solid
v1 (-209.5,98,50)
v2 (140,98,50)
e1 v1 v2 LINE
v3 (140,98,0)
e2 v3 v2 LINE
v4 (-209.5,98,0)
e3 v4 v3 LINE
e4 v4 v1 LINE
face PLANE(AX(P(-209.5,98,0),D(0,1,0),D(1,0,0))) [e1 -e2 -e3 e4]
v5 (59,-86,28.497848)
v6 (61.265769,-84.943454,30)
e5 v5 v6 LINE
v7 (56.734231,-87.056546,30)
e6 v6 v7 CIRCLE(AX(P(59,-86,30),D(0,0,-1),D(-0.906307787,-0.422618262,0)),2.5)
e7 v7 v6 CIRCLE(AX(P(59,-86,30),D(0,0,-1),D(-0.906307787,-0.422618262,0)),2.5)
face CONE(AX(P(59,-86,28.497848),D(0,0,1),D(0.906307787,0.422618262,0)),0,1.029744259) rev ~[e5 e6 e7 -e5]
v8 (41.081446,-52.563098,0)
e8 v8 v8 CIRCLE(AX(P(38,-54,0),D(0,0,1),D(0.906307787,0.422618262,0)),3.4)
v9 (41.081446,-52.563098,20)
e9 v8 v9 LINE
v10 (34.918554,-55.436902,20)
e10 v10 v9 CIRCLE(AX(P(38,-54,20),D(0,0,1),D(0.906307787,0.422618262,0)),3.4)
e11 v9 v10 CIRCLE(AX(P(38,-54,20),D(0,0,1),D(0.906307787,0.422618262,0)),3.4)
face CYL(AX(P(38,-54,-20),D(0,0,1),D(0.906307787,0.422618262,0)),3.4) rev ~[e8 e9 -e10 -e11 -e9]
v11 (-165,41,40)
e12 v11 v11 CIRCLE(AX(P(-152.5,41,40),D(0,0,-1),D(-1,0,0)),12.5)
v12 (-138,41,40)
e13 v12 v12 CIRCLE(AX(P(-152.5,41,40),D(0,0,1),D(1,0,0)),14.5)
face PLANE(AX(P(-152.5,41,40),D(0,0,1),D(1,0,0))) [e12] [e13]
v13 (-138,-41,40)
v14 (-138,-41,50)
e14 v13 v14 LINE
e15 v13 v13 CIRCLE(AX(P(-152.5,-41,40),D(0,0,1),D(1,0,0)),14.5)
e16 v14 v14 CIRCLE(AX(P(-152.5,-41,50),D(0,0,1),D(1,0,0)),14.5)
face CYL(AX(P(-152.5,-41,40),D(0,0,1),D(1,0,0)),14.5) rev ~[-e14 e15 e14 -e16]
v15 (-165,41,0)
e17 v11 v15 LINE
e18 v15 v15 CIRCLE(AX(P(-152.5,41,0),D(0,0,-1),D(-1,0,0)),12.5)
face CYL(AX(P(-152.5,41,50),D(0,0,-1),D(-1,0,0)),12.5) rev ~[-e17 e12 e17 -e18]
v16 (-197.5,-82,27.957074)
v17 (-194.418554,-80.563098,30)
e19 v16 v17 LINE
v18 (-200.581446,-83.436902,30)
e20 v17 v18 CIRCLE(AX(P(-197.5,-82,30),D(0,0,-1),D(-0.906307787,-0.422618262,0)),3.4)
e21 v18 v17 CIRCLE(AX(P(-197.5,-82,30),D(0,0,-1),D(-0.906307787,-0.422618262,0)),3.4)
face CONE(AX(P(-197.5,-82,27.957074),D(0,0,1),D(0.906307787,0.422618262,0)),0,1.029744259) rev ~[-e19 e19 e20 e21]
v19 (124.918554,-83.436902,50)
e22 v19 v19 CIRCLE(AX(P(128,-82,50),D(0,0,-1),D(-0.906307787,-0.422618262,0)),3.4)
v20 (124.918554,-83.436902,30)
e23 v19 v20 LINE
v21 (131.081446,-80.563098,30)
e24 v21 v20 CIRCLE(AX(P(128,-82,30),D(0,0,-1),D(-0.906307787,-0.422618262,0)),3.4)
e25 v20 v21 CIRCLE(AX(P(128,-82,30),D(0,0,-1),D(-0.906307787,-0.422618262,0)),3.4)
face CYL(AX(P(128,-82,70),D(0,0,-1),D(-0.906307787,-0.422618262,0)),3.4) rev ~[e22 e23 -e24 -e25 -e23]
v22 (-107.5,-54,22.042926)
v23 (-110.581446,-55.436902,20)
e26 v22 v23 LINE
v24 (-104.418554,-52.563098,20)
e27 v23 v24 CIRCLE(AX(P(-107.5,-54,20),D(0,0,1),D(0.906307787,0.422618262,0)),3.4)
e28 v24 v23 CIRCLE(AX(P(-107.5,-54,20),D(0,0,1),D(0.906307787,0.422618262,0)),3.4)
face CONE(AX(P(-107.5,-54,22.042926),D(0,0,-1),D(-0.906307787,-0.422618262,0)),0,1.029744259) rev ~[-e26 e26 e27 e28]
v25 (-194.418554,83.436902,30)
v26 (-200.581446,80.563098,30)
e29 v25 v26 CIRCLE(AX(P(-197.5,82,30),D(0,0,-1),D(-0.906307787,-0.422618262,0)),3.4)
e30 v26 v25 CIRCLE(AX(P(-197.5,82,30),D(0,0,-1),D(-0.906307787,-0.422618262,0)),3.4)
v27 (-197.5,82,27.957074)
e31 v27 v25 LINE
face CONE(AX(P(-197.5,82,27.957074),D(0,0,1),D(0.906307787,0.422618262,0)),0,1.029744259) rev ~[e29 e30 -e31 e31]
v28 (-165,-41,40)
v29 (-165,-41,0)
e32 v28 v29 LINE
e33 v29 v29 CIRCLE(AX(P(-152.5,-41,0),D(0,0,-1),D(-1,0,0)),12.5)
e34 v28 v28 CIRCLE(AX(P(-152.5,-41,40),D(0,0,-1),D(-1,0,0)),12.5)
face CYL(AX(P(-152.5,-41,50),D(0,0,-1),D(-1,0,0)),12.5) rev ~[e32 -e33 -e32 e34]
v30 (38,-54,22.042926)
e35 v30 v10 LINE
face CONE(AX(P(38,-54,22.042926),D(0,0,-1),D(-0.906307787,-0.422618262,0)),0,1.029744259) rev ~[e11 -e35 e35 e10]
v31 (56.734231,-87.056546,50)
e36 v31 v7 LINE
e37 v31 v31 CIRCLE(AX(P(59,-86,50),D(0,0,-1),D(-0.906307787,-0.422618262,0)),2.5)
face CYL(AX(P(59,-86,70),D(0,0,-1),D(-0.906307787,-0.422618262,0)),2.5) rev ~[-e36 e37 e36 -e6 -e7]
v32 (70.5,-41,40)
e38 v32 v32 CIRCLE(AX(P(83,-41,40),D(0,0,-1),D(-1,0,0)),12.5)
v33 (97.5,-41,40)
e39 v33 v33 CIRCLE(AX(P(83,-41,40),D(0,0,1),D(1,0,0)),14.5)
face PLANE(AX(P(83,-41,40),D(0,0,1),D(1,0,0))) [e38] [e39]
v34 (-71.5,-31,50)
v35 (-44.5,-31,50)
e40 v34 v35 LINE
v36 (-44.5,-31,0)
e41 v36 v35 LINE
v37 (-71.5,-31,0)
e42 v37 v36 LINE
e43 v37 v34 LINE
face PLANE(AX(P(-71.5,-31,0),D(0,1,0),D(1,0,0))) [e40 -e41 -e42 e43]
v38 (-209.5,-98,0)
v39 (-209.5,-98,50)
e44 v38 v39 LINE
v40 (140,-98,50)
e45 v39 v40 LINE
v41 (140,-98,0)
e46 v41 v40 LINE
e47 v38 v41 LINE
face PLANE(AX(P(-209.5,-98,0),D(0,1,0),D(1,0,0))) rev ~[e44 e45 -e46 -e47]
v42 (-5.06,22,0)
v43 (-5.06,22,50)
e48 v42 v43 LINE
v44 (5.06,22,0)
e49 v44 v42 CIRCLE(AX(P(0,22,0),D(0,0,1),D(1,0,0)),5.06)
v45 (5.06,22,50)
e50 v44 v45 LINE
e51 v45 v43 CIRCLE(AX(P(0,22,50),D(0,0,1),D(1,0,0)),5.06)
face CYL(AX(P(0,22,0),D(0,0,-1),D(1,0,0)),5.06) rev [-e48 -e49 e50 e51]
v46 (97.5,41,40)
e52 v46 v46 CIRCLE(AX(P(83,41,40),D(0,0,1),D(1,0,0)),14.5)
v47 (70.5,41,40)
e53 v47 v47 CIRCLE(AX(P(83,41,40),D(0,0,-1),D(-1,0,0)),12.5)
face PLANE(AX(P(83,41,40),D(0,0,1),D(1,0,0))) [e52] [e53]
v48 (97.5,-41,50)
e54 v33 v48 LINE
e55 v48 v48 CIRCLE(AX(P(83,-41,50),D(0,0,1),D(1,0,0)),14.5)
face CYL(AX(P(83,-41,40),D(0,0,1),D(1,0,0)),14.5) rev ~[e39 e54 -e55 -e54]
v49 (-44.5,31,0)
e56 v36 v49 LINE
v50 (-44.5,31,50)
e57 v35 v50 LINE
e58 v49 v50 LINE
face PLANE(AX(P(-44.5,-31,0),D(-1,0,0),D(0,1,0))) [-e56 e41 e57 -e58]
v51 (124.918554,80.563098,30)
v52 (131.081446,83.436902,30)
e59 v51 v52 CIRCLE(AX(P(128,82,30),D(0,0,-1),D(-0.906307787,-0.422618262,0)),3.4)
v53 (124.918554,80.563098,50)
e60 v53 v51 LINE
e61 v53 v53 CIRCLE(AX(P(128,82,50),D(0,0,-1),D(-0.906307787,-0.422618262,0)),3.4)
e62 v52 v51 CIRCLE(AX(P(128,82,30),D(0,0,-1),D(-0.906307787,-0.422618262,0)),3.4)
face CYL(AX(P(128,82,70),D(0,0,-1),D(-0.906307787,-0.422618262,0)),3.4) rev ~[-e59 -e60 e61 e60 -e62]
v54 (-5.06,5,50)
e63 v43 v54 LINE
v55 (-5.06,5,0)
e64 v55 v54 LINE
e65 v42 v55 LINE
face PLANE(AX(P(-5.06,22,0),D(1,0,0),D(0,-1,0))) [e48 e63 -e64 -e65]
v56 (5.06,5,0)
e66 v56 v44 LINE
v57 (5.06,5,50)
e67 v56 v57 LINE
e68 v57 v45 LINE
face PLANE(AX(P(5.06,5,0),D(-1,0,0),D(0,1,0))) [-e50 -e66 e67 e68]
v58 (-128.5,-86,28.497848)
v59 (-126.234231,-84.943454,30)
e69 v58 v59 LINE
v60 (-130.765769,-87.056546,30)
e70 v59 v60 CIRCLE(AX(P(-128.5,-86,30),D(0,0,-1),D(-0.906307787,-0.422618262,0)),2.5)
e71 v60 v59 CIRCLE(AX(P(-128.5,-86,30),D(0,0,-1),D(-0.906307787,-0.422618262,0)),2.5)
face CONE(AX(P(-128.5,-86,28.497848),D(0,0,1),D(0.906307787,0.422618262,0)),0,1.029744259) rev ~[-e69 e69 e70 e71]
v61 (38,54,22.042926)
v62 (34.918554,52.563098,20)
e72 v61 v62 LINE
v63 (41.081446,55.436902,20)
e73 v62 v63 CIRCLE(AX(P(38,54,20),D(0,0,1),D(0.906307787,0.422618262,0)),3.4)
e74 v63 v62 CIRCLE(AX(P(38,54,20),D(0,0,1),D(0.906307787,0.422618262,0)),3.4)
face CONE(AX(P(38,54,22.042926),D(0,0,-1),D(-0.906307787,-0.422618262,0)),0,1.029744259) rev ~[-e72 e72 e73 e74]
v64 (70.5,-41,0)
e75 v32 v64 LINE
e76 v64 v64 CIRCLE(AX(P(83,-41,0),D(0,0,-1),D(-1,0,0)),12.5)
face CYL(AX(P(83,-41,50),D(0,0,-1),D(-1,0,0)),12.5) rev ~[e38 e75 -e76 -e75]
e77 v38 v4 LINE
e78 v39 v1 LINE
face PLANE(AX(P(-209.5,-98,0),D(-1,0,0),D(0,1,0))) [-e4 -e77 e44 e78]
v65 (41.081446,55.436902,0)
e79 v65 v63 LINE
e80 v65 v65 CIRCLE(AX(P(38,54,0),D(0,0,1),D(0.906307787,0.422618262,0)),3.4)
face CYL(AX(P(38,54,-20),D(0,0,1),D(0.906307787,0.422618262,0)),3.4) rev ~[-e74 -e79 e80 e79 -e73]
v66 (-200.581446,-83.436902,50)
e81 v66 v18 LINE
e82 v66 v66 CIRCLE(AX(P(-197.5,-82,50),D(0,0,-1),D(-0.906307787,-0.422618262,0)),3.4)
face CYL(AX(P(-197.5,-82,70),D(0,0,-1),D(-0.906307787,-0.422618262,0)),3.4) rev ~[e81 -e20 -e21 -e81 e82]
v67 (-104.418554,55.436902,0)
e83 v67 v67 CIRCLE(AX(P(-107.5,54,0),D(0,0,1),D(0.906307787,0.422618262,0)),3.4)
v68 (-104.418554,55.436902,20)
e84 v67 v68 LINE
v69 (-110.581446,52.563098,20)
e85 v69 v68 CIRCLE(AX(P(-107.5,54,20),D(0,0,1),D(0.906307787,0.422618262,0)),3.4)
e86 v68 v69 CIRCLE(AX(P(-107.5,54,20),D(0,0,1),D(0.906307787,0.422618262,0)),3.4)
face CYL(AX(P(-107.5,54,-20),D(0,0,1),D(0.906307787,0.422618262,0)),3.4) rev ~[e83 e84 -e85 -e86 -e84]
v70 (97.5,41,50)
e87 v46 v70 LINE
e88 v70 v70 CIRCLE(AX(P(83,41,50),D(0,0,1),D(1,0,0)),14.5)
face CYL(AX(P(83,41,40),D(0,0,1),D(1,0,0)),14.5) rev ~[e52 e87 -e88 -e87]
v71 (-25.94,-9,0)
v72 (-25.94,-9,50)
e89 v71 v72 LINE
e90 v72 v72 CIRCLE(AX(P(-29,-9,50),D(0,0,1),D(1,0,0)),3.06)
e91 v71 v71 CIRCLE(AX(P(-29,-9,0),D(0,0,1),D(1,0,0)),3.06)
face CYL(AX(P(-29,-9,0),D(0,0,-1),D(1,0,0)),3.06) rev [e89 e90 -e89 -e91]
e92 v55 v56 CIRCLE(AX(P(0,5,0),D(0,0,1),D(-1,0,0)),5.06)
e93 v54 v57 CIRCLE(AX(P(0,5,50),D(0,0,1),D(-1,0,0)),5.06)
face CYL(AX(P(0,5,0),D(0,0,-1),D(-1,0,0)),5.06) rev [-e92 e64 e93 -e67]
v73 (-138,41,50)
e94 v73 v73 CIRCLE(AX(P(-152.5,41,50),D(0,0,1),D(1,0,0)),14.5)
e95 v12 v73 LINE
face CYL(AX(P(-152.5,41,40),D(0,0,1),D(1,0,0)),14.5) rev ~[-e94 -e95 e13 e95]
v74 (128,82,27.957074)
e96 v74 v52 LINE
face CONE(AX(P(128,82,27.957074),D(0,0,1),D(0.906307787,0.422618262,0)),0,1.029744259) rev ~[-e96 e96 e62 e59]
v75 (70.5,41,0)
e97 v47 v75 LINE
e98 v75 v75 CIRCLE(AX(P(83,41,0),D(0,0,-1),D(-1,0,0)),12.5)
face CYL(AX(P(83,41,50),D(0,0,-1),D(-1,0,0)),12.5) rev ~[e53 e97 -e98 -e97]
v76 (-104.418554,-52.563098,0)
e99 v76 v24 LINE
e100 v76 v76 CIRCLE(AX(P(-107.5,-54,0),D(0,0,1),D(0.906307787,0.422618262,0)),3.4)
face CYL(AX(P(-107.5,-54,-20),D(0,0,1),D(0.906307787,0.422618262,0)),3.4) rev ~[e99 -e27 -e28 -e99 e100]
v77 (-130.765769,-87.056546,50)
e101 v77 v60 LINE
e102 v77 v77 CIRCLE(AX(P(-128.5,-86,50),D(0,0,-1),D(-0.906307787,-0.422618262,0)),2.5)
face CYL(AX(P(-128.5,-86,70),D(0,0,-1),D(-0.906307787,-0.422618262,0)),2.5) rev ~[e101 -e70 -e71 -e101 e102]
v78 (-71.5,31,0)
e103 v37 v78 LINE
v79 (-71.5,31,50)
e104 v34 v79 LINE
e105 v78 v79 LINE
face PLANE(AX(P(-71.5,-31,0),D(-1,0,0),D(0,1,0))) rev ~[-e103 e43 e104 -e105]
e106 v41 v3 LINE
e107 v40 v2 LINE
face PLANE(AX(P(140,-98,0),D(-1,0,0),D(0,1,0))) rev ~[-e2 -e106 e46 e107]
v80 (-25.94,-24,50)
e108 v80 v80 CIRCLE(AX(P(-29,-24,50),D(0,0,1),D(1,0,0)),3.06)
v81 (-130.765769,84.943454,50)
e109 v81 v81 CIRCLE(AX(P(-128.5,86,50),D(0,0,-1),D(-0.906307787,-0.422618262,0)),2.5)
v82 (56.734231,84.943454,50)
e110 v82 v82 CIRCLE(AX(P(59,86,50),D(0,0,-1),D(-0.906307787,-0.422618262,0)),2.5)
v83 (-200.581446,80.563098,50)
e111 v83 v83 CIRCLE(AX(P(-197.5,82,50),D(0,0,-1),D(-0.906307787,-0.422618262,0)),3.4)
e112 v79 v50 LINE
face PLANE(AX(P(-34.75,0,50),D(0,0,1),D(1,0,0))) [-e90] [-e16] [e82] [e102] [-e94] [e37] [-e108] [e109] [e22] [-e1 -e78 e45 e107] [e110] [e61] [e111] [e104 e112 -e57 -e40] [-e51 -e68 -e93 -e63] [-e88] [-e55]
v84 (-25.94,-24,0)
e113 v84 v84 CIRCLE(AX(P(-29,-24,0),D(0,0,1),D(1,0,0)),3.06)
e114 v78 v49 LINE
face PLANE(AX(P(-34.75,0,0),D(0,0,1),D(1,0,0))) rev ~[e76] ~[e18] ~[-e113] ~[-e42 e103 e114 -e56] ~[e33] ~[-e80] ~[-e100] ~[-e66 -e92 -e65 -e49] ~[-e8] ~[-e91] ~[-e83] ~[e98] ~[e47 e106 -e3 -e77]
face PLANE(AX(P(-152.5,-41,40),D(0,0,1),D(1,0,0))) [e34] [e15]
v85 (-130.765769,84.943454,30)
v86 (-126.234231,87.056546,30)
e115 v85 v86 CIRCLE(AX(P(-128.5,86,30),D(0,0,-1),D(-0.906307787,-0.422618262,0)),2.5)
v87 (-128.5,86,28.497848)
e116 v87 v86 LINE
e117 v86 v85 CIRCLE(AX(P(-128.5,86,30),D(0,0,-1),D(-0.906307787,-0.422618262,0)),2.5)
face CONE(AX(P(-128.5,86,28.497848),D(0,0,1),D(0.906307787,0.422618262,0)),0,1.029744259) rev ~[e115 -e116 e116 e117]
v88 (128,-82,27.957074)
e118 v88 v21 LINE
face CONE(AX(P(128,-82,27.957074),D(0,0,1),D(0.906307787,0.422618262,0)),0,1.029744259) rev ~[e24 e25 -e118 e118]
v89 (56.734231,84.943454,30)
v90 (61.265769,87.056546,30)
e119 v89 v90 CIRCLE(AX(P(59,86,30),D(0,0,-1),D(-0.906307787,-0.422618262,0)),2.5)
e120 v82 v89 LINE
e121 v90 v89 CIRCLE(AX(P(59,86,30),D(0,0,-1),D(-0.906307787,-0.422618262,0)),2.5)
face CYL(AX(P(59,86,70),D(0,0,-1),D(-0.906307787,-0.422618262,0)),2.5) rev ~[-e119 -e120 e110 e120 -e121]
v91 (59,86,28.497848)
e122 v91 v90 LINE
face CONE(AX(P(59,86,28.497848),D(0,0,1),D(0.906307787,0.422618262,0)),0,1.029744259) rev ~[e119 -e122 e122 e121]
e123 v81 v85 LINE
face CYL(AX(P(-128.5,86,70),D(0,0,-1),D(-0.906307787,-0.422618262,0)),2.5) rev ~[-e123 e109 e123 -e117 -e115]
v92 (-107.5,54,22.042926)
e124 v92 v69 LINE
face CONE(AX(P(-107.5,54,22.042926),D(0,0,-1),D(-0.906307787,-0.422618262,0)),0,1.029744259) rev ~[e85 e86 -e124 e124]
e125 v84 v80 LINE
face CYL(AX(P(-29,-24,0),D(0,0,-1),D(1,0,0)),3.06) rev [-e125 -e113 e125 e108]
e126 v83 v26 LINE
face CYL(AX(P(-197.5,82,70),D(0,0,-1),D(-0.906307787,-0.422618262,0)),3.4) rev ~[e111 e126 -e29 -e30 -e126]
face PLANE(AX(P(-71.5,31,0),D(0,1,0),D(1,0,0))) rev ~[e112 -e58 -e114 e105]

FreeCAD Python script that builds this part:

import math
import FreeCAD as App
import Part
import Sketcher
from FreeCAD import Vector
Q = App.Units.Quantity


def add_polygon(sketch, points):
    """Adds a closed chain of lines whose ends are joined by coincident constraints."""
    first, n = sketch.GeometryCount, len(points)
    for a, b in zip(points, points[1:] + points[:1]):
        sketch.addGeometry(Part.LineSegment(App.Vector(*a, 0), App.Vector(*b, 0)), False)
    for i in range(n):
        sketch.addConstraint(Sketcher.Constraint("Coincident", first + i, 2, first + (i + 1) % n, 1))

doc = App.newDocument("Part")
body = doc.addObject("PartDesign::Body", "Body")

sketch1 = body.newObject("Sketcher::SketchObject", "Sketch")
sketch1.AttachmentSupport = (doc.getObject("XY_Plane"), [""])
sketch1.MapMode = "FlatFace"
add_polygon(sketch1, [(-209.5, 98), (-209.5, -98), (140, -98), (140, 98)])
sketch1.addGeometry(Part.Circle(Vector(-29, -24, 0), Vector(0, 0, 1), 3.1), False)
sketch1.addGeometry(Part.Circle(Vector(-29, -9, 0), Vector(0, 0, 1), 3.1), False)
add_polygon(sketch1, [(-44.5, -31), (-71.5, -31), (-71.5, 31), (-44.5, 31)])
sketch1.addGeometry(Part.LineSegment(Vector(-5.1, 5, 0), Vector(-5.1, 22, 0)), False)
sketch1.addGeometry(Part.ArcOfCircle(Part.Circle(Vector(0, 22, 0), Vector(0, 0, 1), 5.1), math.radians(0), math.radians(180)), False)
sketch1.addGeometry(Part.LineSegment(Vector(5.1, 22, 0), Vector(5.1, 5, 0)), False)
sketch1.addGeometry(Part.ArcOfCircle(Part.Circle(Vector(0, 5, 0), Vector(0, 0, 1), 5.1), math.radians(180), math.radians(360)), False)
sketch1.addConstraint([
    Sketcher.Constraint("Tangent", 10, 2, 11, 2),
    Sketcher.Constraint("Tangent", 11, 1, 12, 1),
    Sketcher.Constraint("Tangent", 12, 2, 13, 2),
    Sketcher.Constraint("Tangent", 13, 1, 10, 1),
    Sketcher.Constraint("Vertical", 0),
    Sketcher.Constraint("Horizontal", 1),
    Sketcher.Constraint("Vertical", 2),
    Sketcher.Constraint("Horizontal", 3),
    Sketcher.Constraint("Horizontal", 6),
    Sketcher.Constraint("Vertical", 7),
    Sketcher.Constraint("Horizontal", 8),
    Sketcher.Constraint("Vertical", 9),
    Sketcher.Constraint("Vertical", 10),
    Sketcher.Constraint("Vertical", 12),
    Sketcher.Constraint("Equal", 4, 5),
    Sketcher.Constraint("PointOnObject", 11, 3, -2),
    Sketcher.Constraint("Vertical", 4, 3, 5, 3),
    Sketcher.Constraint("Diameter", 4, Q("6.12 mm")),
    Sketcher.Constraint("DistanceX", 6, 2, 6, 1, Q("27 mm")),
    Sketcher.Constraint("DistanceY", 0, 2, 0, 1, Q("196 mm")),
    Sketcher.Constraint("DistanceY", 7, 1, 7, 2, Q("62 mm")),
    Sketcher.Constraint("DistanceY", 10, 1, 10, 2, Q("17 mm")),
    Sketcher.Constraint("Radius", 11, Q("5.06 mm")),
    Sketcher.Constraint("DistanceX", 1, 1, 1, 2, Q("349.5 mm")),
    Sketcher.Constraint("DistanceX", 4, 3, -1, 1, Q("29 mm")),
    Sketcher.Constraint("DistanceY", 4, 3, -1, 1, Q("24 mm")),
    Sketcher.Constraint("DistanceY", 5, 3, -1, 1, Q("9 mm")),
    Sketcher.Constraint("DistanceY", -1, 1, 11, 3, Q("22 mm")),
    Sketcher.Constraint("DistanceY", 0, 2, -1, 1, Q("98 mm")),
    Sketcher.Constraint("DistanceX", -1, 1, 1, 2, Q("140 mm")),
    Sketcher.Constraint("DistanceY", 6, 2, -1, 1, Q("31 mm")),
    Sketcher.Constraint("DistanceX", 0, 2, 6, 2, Q("138 mm")),
])
pad1 = body.newObject("PartDesign::Pad", "Pad")
pad1.Profile = sketch1
pad1.Length = 50

sketch2 = body.newObject("Sketcher::SketchObject", "Sketch001")
sketch2.AttachmentSupport = (doc.getObject("XY_Plane"), [""])
sketch2.MapMode = "FlatFace"
sketch2.addGeometry([
    Part.Circle(Vector(-107.5, 54, 0), Vector(0, 0, 1), 3.4),
    Part.Circle(Vector(-107.5, -54, 0), Vector(0, 0, 1), 3.4),
    Part.Circle(Vector(38, 54, 0), Vector(0, 0, 1), 3.4),
    Part.Circle(Vector(38, -54, 0), Vector(0, 0, 1), 3.4),
], False)
sketch2.addConstraint([
    Sketcher.Constraint("Equal", 0, 1),
    Sketcher.Constraint("Equal", 1, 2),
    Sketcher.Constraint("Equal", 2, 3),
    Sketcher.Constraint("Symmetric", 0, 3, 1, 3, -1),
    Sketcher.Constraint("Symmetric", 2, 3, 3, 3, -1),
    Sketcher.Constraint("Horizontal", 0, 3, 2, 3),
    Sketcher.Constraint("Diameter", 0, Q("6.8 mm")),
    Sketcher.Constraint("DistanceY", -1, 1, 0, 3, Q("54 mm")),
    Sketcher.Constraint("DistanceX", -1, 1, 2, 3, Q("38 mm")),
    Sketcher.Constraint("DistanceX", 0, 3, -1, 1, Q("107.5 mm")),
])
doc.recompute()
hole = body.newObject("PartDesign::Hole", "Hole")
hole.Profile = sketch2
hole.ThreadType = "None"
hole.Diameter = 6.8
hole.DepthType = "Dimension"
hole.Depth = 20
hole.DrillPoint = "Angled"
hole.DrillPointAngle = 118
hole.Reversed = True

sketch3 = body.newObject("Sketcher::SketchObject", "Sketch002")
sketch3.AttachmentSupport = (doc.getObject("XY_Plane"), [""])
sketch3.MapMode = "FlatFace"
sketch3.AttachmentOffset = App.Placement(Vector(0, 0, 50), App.Rotation())
sketch3.addGeometry([
    Part.Circle(Vector(59, 86, 0), Vector(0, 0, 1), 2.5),
    Part.Circle(Vector(59, -86, 0), Vector(0, 0, 1), 2.5),
], False)
sketch3.addConstraint([
    Sketcher.Constraint("Equal", 0, 1),
    Sketcher.Constraint("Symmetric", 0, 3, 1, 3, -1),
    Sketcher.Constraint("Diameter", 0, Q("5 mm")),
    Sketcher.Constraint("DistanceX", -1, 1, 0, 3, Q("59 mm")),
    Sketcher.Constraint("DistanceY", -1, 1, 0, 3, Q("86 mm")),
])
doc.recompute()
hole2 = body.newObject("PartDesign::Hole", "Hole001")
hole2.Profile = sketch3
hole2.ThreadType = "None"
hole2.Diameter = 5
hole2.DepthType = "Dimension"
hole2.Depth = 20
hole2.DrillPoint = "Angled"
hole2.DrillPointAngle = 118

sketch4 = body.newObject("Sketcher::SketchObject", "Sketch003")
sketch4.AttachmentSupport = (doc.getObject("XY_Plane"), [""])
sketch4.MapMode = "FlatFace"
sketch4.AttachmentOffset = App.Placement(Vector(0, 0, 50), App.Rotation())
sketch4.addGeometry([
    Part.Circle(Vector(-128.5, 86, 0), Vector(0, 0, 1), 2.5),
    Part.Circle(Vector(-128.5, -86, 0), Vector(0, 0, 1), 2.5),
], False)
sketch4.addConstraint([
    Sketcher.Constraint("Equal", 0, 1),
    Sketcher.Constraint("Symmetric", 0, 3, 1, 3, -1),
    Sketcher.Constraint("Diameter", 0, Q("5 mm")),
    Sketcher.Constraint("DistanceY", -1, 1, 0, 3, Q("86 mm")),
    Sketcher.Constraint("DistanceX", 0, 3, -1, 1, Q("128.5 mm")),
])
doc.recompute()
hole3 = body.newObject("PartDesign::Hole", "Hole002")
hole3.Profile = sketch4
hole3.ThreadType = "None"
hole3.Diameter = 5
hole3.DepthType = "Dimension"
hole3.Depth = 20
hole3.DrillPoint = "Angled"
hole3.DrillPointAngle = 118

sketch5 = body.newObject("Sketcher::SketchObject", "Sketch004")
sketch5.AttachmentSupport = (doc.getObject("XY_Plane"), [""])
sketch5.MapMode = "FlatFace"
sketch5.AttachmentOffset = App.Placement(Vector(0, 0, 50), App.Rotation())
sketch5.addGeometry([
    Part.Circle(Vector(128, -82, 0), Vector(0, 0, 1), 3.4),
    Part.Circle(Vector(128, 82, 0), Vector(0, 0, 1), 3.4),
], False)
sketch5.addConstraint([
    Sketcher.Constraint("Equal", 0, 1),
    Sketcher.Constraint("Symmetric", 0, 3, 1, 3, -1),
    Sketcher.Constraint("Diameter", 0, Q("6.8 mm")),
    Sketcher.Constraint("DistanceX", -1, 1, 0, 3, Q("128 mm")),
    Sketcher.Constraint("DistanceY", 0, 3, -1, 1, Q("82 mm")),
])
doc.recompute()
hole4 = body.newObject("PartDesign::Hole", "Hole003")
hole4.Profile = sketch5
hole4.ThreadType = "None"
hole4.Diameter = 6.8
hole4.DepthType = "Dimension"
hole4.Depth = 20
hole4.DrillPoint = "Angled"
hole4.DrillPointAngle = 118

sketch6 = body.newObject("Sketcher::SketchObject", "Sketch005")
sketch6.AttachmentSupport = (doc.getObject("XY_Plane"), [""])
sketch6.MapMode = "FlatFace"
sketch6.AttachmentOffset = App.Placement(Vector(0, 0, 50), App.Rotation())
sketch6.addGeometry([
    Part.Circle(Vector(-197.5, 82, 0), Vector(0, 0, 1), 3.4),
    Part.Circle(Vector(-197.5, -82, 0), Vector(0, 0, 1), 3.4),
], False)
sketch6.addConstraint([
    Sketcher.Constraint("Equal", 0, 1),
    Sketcher.Constraint("Symmetric", 0, 3, 1, 3, -1),
    Sketcher.Constraint("Diameter", 0, Q("6.8 mm")),
    Sketcher.Constraint("DistanceY", -1, 1, 0, 3, Q("82 mm")),
    Sketcher.Constraint("DistanceX", 0, 3, -1, 1, Q("197.5 mm")),
])
doc.recompute()
hole5 = body.newObject("PartDesign::Hole", "Hole004")
hole5.Profile = sketch6
hole5.ThreadType = "None"
hole5.Diameter = 6.8
hole5.DepthType = "Dimension"
hole5.Depth = 20
hole5.DrillPoint = "Angled"
hole5.DrillPointAngle = 118

sketch7 = body.newObject("Sketcher::SketchObject", "Sketch006")
sketch7.AttachmentSupport = (doc.getObject("XY_Plane"), [""])
sketch7.MapMode = "FlatFace"
sketch7.AttachmentOffset = App.Placement(Vector(0, 0, 50), App.Rotation())
sketch7.addGeometry([
    Part.Circle(Vector(83, -41, 0), Vector(0, 0, 1), 12),
    Part.Circle(Vector(83, 41, 0), Vector(0, 0, 1), 12),
    Part.Circle(Vector(-152, 41, 0), Vector(0, 0, 1), 12),
    Part.Circle(Vector(-152, -41, 0), Vector(0, 0, 1), 12),
], False)
sketch7.addConstraint([
    Sketcher.Constraint("Equal", 0, 1),
    Sketcher.Constraint("Equal", 1, 2),
    Sketcher.Constraint("Equal", 2, 3),
    Sketcher.Constraint("Symmetric", 0, 3, 1, 3, -1),
    Sketcher.Constraint("Symmetric", 2, 3, 3, 3, -1),
    Sketcher.Constraint("Horizontal", 1, 3, 2, 3),
    Sketcher.Constraint("Diameter", 0, Q("25 mm")),
    Sketcher.Constraint("DistanceX", -1, 1, 0, 3, Q("83 mm")),
    Sketcher.Constraint("DistanceY", 0, 3, -1, 1, Q("41 mm")),
    Sketcher.Constraint("DistanceX", 2, 3, -1, 1, Q("152.5 mm")),
])
doc.recompute()
hole6 = body.newObject("PartDesign::Hole", "Hole005")
hole6.Profile = sketch7
hole6.ThreadType = "None"
hole6.Diameter = 25
hole6.DepthType = "Dimension"
hole6.Depth = 70
hole6.DrillPoint = "Flat"
hole6.HoleCutType = "Counterbore"
hole6.HoleCutDiameter = 29
hole6.HoleCutDepth = 10

doc.recompute()
